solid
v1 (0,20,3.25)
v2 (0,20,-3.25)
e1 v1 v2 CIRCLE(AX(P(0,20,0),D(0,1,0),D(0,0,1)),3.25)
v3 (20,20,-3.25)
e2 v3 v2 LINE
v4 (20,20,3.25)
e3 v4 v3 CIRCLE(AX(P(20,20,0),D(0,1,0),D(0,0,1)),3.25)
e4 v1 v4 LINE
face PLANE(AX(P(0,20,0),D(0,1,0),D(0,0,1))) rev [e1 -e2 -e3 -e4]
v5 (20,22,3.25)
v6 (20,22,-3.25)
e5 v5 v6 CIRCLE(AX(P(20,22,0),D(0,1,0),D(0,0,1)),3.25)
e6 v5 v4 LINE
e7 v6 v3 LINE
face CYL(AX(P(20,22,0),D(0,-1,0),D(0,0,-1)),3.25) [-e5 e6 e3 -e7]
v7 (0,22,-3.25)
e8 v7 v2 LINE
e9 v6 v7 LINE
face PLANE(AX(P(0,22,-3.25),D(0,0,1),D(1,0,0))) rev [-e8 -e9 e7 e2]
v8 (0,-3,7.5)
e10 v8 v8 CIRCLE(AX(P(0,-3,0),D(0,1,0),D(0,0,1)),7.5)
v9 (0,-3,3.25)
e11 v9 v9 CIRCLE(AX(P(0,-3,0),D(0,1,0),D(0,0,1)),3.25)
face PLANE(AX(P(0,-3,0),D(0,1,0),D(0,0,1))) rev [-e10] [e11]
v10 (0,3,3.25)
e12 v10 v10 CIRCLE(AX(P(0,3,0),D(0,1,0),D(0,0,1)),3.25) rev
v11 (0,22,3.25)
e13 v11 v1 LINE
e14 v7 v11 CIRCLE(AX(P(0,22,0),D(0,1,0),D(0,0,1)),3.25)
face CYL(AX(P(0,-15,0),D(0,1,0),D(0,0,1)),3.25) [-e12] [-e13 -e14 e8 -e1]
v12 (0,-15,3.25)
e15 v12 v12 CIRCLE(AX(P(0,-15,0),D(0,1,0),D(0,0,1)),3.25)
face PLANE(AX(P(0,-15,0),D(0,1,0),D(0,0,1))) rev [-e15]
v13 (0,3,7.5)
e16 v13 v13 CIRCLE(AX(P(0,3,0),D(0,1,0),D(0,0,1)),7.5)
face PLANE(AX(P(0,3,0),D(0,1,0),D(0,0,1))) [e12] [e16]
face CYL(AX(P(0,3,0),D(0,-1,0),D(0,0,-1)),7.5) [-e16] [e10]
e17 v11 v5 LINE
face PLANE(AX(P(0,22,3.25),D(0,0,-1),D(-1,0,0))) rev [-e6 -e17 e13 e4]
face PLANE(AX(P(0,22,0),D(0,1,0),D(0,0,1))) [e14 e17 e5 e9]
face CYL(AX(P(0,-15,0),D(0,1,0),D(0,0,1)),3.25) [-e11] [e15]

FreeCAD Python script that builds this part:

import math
import FreeCAD as App
import Part
import Sketcher
from FreeCAD import Vector

doc = App.newDocument("Part")
body = doc.addObject("PartDesign::Body", "Body")

# Sketch on XZ plane
sketch1 = body.newObject("Sketcher::SketchObject", "Sketch")
sketch1.AttachmentSupport = (doc.getObject("XZ_Plane"), [""])
sketch1.MapMode = "FlatFace"
sketch1.addGeometry(Part.Circle(Vector(0, 0, 0), Vector(0, 0, 1), 3.2), False)
sketch1.addConstraint(Sketcher.Constraint("Coincident", 0, 3, -1, 1))
sketch1.addConstraint(Sketcher.Constraint("Diameter", 0, 6.5))
pad1 = body.newObject("PartDesign::Pad", "Pad")
pad1.Profile = sketch1
pad1.Type = "TwoLengths"
pad1.Length = 20
pad1.Length2 = 15
pad1.Reversed = True

# Sketch on XZ plane
sketch2 = body.newObject("Sketcher::SketchObject", "Sketch001")
sketch2.AttachmentSupport = (doc.getObject("XZ_Plane"), [""])
sketch2.MapMode = "FlatFace"
sketch2.addGeometry(Part.Circle(Vector(0, 0, 0), Vector(0, 0, 1), 7.5), False)
sketch2.addGeometry(Part.Circle(Vector(0, 0, 0), Vector(0, 0, 1), 3.2), False)
sketch2.addConstraint(Sketcher.Constraint("Coincident", 0, 3, -1, 1))
sketch2.addConstraint(Sketcher.Constraint("Coincident", 1, 3, -1, 1))
sketch2.addConstraint(Sketcher.Constraint("Diameter", 0, 15.0))
sketch2.addConstraint(Sketcher.Constraint("Diameter", 1, 6.5))
pad2 = body.newObject("PartDesign::Pad", "Pad001")
pad2.Profile = sketch2
pad2.Length = 6
pad2.Midplane = True

# Sketch on XZ plane
sketch3 = body.newObject("Sketcher::SketchObject", "Sketch002")
sketch3.AttachmentSupport = (doc.getObject("XZ_Plane"), [""])
sketch3.MapMode = "FlatFace"
sketch3.AttachmentOffset = App.Placement(Vector(0, 0, -20), App.Rotation())
sketch3.addGeometry(Part.LineSegment(Vector(20, -3.2, 0), Vector(0, -3.2, 0)), False)
sketch3.addGeometry(Part.ArcOfCircle(Part.Circle(Vector(0, 0, 0), Vector(0, 0, 1), 3.2), math.radians(90), math.radians(270)), False)
sketch3.addGeometry(Part.LineSegment(Vector(0, 3.2, 0), Vector(20, 3.2, 0)), False)
sketch3.addGeometry(Part.ArcOfCircle(Part.Circle(Vector(20, 0, 0), Vector(0, 0, 1), 3.2), math.radians(-90), math.radians(90)), False)
sketch3.addConstraint(Sketcher.Constraint("Tangent", 0, 2, 1, 2))
sketch3.addConstraint(Sketcher.Constraint("Tangent", 1, 1, 2, 1))
sketch3.addConstraint(Sketcher.Constraint("Tangent", 2, 2, 3, 2))
sketch3.addConstraint(Sketcher.Constraint("Tangent", 3, 1, 0, 1))
sketch3.addConstraint(Sketcher.Constraint("Horizontal", 0))
sketch3.addConstraint(Sketcher.Constraint("Horizontal", 2))
sketch3.addConstraint(Sketcher.Constraint("Coincident", 1, 3, -1, 1))
sketch3.addConstraint(Sketcher.Constraint("DistanceX", 0, 2, 0, 1, 20.0))
sketch3.addConstraint(Sketcher.Constraint("Radius", 1, 3.25))
pad3 = body.newObject("PartDesign::Pad", "Pad002")
pad3.Profile = sketch3
pad3.Length = 2
pad3.Reversed = True

doc.recompute()
